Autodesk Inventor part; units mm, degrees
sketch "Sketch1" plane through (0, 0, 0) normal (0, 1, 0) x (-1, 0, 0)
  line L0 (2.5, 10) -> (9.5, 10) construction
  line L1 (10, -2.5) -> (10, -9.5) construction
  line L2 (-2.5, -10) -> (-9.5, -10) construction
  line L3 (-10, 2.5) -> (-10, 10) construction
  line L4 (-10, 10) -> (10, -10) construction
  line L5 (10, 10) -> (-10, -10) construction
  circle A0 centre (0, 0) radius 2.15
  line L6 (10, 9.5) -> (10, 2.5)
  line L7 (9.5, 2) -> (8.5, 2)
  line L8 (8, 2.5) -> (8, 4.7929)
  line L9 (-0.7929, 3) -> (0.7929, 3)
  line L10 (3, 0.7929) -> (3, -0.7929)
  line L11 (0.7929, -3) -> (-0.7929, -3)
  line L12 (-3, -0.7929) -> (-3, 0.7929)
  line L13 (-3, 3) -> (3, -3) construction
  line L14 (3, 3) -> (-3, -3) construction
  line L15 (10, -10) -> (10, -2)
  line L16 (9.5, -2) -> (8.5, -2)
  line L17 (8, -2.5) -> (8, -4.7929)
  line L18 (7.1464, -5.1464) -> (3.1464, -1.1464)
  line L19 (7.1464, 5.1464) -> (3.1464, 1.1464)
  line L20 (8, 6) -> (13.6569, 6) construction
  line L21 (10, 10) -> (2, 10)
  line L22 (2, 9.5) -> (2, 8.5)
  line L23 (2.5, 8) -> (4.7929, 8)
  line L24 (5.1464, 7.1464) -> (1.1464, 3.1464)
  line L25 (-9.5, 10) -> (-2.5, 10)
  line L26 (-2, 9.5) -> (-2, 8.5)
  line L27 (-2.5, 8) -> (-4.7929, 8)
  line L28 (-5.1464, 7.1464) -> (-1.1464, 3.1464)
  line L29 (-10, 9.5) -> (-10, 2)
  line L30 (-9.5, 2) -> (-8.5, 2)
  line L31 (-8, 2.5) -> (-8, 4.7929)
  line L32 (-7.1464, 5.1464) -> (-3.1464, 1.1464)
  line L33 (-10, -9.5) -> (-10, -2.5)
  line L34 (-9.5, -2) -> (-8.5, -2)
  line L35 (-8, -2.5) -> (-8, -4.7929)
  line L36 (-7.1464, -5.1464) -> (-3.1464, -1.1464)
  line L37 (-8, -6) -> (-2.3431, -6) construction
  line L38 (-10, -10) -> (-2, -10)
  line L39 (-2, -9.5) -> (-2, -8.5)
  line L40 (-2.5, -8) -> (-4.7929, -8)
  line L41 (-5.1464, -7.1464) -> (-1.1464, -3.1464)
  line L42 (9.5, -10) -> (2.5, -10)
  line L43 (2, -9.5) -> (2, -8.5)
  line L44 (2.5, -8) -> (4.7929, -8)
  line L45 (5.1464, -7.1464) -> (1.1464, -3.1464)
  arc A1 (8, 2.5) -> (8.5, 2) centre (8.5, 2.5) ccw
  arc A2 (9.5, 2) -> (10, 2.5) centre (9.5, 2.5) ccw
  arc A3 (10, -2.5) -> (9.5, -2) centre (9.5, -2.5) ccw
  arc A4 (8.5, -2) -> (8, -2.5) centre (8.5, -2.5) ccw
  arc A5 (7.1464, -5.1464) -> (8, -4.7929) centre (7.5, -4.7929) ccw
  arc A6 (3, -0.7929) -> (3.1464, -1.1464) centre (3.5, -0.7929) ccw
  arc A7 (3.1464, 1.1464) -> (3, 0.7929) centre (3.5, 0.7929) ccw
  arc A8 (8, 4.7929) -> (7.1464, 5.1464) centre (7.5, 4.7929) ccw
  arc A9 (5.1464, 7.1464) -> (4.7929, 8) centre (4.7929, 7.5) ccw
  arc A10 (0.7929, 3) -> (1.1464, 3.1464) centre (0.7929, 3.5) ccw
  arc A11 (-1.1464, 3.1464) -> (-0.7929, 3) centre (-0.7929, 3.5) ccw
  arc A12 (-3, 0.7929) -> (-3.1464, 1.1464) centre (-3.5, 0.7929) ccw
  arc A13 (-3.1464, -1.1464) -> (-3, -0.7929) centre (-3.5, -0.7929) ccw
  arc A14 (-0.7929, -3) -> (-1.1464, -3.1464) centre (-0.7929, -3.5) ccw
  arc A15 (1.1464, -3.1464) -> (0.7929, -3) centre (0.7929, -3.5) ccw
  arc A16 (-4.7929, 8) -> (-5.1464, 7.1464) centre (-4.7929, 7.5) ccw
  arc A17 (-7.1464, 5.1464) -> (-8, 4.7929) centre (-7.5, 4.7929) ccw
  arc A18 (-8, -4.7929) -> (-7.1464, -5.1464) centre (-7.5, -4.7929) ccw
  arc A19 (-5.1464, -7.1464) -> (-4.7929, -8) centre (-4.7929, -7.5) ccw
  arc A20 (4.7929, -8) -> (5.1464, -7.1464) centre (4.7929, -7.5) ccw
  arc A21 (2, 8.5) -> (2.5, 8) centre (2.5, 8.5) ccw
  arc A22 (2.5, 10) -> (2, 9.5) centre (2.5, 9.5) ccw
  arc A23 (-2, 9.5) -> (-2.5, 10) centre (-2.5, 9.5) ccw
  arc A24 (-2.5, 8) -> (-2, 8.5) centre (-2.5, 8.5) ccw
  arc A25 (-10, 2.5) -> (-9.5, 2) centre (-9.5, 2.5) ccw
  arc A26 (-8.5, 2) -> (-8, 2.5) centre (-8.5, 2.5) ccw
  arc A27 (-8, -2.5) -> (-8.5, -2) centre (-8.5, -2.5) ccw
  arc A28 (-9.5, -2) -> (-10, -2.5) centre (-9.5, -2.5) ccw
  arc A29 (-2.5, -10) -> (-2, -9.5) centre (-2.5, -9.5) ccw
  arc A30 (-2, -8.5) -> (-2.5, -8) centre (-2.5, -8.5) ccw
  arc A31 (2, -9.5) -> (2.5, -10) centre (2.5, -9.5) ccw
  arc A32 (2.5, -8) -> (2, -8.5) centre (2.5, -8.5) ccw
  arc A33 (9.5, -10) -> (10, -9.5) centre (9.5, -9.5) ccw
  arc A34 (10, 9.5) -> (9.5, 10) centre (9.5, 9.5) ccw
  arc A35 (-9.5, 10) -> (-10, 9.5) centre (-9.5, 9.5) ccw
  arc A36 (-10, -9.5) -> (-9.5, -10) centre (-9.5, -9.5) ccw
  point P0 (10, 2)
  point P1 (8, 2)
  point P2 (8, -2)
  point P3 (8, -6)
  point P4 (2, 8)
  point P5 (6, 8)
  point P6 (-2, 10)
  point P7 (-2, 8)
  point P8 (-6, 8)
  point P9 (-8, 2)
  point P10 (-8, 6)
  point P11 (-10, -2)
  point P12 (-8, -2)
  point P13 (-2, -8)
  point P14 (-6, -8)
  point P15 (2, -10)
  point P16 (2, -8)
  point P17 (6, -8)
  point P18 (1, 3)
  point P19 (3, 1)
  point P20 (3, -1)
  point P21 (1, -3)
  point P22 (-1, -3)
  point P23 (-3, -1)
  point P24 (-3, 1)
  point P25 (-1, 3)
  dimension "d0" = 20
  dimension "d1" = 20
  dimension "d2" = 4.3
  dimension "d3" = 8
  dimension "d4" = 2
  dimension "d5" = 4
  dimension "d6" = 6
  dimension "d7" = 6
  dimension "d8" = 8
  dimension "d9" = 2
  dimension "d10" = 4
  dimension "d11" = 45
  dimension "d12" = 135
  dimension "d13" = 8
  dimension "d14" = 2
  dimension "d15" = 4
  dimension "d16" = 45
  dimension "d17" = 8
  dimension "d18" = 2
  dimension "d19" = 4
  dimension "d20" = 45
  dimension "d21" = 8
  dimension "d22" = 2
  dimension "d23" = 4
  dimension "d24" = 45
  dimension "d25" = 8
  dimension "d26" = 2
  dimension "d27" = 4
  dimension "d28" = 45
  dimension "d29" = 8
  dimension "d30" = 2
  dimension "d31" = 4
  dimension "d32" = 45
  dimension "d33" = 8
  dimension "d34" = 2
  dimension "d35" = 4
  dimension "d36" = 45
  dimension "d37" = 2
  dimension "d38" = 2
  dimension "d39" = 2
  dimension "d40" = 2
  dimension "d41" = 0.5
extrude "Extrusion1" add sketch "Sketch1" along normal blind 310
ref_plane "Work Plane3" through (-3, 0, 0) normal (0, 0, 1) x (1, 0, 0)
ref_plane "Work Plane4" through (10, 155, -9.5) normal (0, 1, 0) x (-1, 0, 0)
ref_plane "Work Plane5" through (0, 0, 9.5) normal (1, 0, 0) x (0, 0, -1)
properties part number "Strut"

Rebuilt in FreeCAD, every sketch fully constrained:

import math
import FreeCAD as App
import Part
import Sketcher
from FreeCAD import Vector
Q = App.Units.Quantity

doc = App.newDocument("Part")
body = doc.addObject("PartDesign::Body", "Body")

# Sketch on XZ plane
sketch1 = body.newObject("Sketcher::SketchObject", "Sketch")
sketch1.AttachmentSupport = (doc.getObject("XZ_Plane"), [""])
sketch1.MapMode = "FlatFace"
sketch1.addGeometry([
    Part.LineSegment(Vector(-10, 2.5, 0), Vector(-10, 9.5, 0)),  # 0
    Part.ArcOfCircle(Part.Circle(Vector(-9.5, 9.5, 0), Vector(0, 0, 1), 0.5), math.radians(90), math.radians(180)),  # 1
    Part.LineSegment(Vector(-9.5, 10, 0), Vector(-2.5, 10, 0)),  # 2
    Part.ArcOfCircle(Part.Circle(Vector(-2.5, 9.5, 0), Vector(0, 0, 1), 0.5), math.radians(0), math.radians(90)),  # 3
    Part.LineSegment(Vector(-2, 9.5, 0), Vector(-2, 8.5, 0)),  # 4
    Part.ArcOfCircle(Part.Circle(Vector(-2.5, 8.5, 0), Vector(0, 0, 1), 0.5), math.radians(-90), math.radians(0)),  # 5
    Part.LineSegment(Vector(-2.5, 8, 0), Vector(-4.7929, 8, 0)),  # 6
    Part.ArcOfCircle(Part.Circle(Vector(-4.7929, 7.5, 0), Vector(0, 0, 1), 0.499995), math.radians(90), math.radians(225.008103)),  # 7
    Part.LineSegment(Vector(-5.1464, 7.1464, 0), Vector(-1.1464, 3.1464, 0)),  # 8
    Part.ArcOfCircle(Part.Circle(Vector(-0.7929, 3.5, 0), Vector(0, 0, 1), 0.5), math.radians(-134.991897), math.radians(-90)),  # 9
    Part.LineSegment(Vector(-0.7929, 3, 0), Vector(0.7929, 3, 0)),  # 10
    Part.ArcOfCircle(Part.Circle(Vector(0.7929, 3.5, 0), Vector(0, 0, 1), 0.499995), math.radians(-90), math.radians(-45.008103)),  # 11
    Part.LineSegment(Vector(1.1464, 3.1464, 0), Vector(5.1464, 7.1464, 0)),  # 12
    Part.ArcOfCircle(Part.Circle(Vector(4.7929, 7.5, 0), Vector(0, 0, 1), 0.5), math.radians(-45.008103), math.radians(90)),  # 13
    Part.LineSegment(Vector(4.7929, 8, 0), Vector(2.5, 8, 0)),  # 14
    Part.ArcOfCircle(Part.Circle(Vector(2.5, 8.5, 0), Vector(0, 0, 1), 0.5), math.radians(180), math.radians(270)),  # 15
    Part.LineSegment(Vector(2, 8.5, 0), Vector(2, 9.5, 0)),  # 16
    Part.ArcOfCircle(Part.Circle(Vector(2.5, 9.5, 0), Vector(0, 0, 1), 0.5), math.radians(90), math.radians(180)),  # 17
    Part.LineSegment(Vector(2.5, 10, 0), Vector(9.5, 10, 0)),  # 18
    Part.ArcOfCircle(Part.Circle(Vector(9.5, 9.5, 0), Vector(0, 0, 1), 0.5), math.radians(0), math.radians(90)),  # 19
    Part.LineSegment(Vector(10, 9.5, 0), Vector(10, 2.5, 0)),  # 20
    Part.ArcOfCircle(Part.Circle(Vector(9.5, 2.5, 0), Vector(0, 0, 1), 0.5), math.radians(-90), math.radians(0)),  # 21
    Part.LineSegment(Vector(9.5, 2, 0), Vector(8.5, 2, 0)),  # 22
    Part.ArcOfCircle(Part.Circle(Vector(8.5, 2.5, 0), Vector(0, 0, 1), 0.5), math.radians(180), math.radians(270)),  # 23
    Part.LineSegment(Vector(8, 2.5, 0), Vector(8, 4.7929, 0)),  # 24
    Part.ArcOfCircle(Part.Circle(Vector(7.5, 4.7929, 0), Vector(0, 0, 1), 0.499995), math.radians(0), math.radians(135.008103)),  # 25
    Part.LineSegment(Vector(7.1464, 5.1464, 0), Vector(3.1464, 1.1464, 0)),  # 26
    Part.ArcOfCircle(Part.Circle(Vector(3.5, 0.7929, 0), Vector(0, 0, 1), 0.5), math.radians(135.008103), math.radians(180)),  # 27
    Part.LineSegment(Vector(3, 0.7929, 0), Vector(3, -0.7929, 0)),  # 28
    Part.ArcOfCircle(Part.Circle(Vector(3.5, -0.7929, 0), Vector(0, 0, 1), 0.499995), math.radians(180), math.radians(224.991897)),  # 29
    Part.LineSegment(Vector(3.1464, -1.1464, 0), Vector(7.1464, -5.1464, 0)),  # 30
    Part.ArcOfCircle(Part.Circle(Vector(7.5, -4.7929, 0), Vector(0, 0, 1), 0.5), math.radians(-135.008103), math.radians(0)),  # 31
    Part.LineSegment(Vector(8, -4.7929, 0), Vector(8, -2.5, 0)),  # 32
    Part.ArcOfCircle(Part.Circle(Vector(8.5, -2.5, 0), Vector(0, 0, 1), 0.5), math.radians(90), math.radians(180)),  # 33
    Part.LineSegment(Vector(8.5, -2, 0), Vector(9.5, -2, 0)),  # 34
    Part.ArcOfCircle(Part.Circle(Vector(9.5, -2.5, 0), Vector(0, 0, 1), 0.5), math.radians(0), math.radians(90)),  # 35
    Part.LineSegment(Vector(10, -2.5, 0), Vector(10, -9.5, 0)),  # 36
    Part.ArcOfCircle(Part.Circle(Vector(9.5, -9.5, 0), Vector(0, 0, 1), 0.5), math.radians(-90), math.radians(0)),  # 37
    Part.LineSegment(Vector(9.5, -10, 0), Vector(2.5, -10, 0)),  # 38
    Part.ArcOfCircle(Part.Circle(Vector(2.5, -9.5, 0), Vector(0, 0, 1), 0.5), math.radians(180), math.radians(270)),  # 39
    Part.LineSegment(Vector(2, -9.5, 0), Vector(2, -8.5, 0)),  # 40
    Part.ArcOfCircle(Part.Circle(Vector(2.5, -8.5, 0), Vector(0, 0, 1), 0.5), math.radians(90), math.radians(180)),  # 41
    Part.LineSegment(Vector(2.5, -8, 0), Vector(4.7929, -8, 0)),  # 42
    Part.ArcOfCircle(Part.Circle(Vector(4.7929, -7.5, 0), Vector(0, 0, 1), 0.499995), math.radians(-90), math.radians(45.008103)),  # 43
    Part.LineSegment(Vector(5.1464, -7.1464, 0), Vector(1.1464, -3.1464, 0)),  # 44
    Part.ArcOfCircle(Part.Circle(Vector(0.7929, -3.5, 0), Vector(0, 0, 1), 0.5), math.radians(45.008103), math.radians(90)),  # 45
    Part.LineSegment(Vector(0.7929, -3, 0), Vector(-0.7929, -3, 0)),  # 46
    Part.ArcOfCircle(Part.Circle(Vector(-0.7929, -3.5, 0), Vector(0, 0, 1), 0.499995), math.radians(90), math.radians(134.991897)),  # 47
    Part.LineSegment(Vector(-1.1464, -3.1464, 0), Vector(-5.1464, -7.1464, 0)),  # 48
    Part.ArcOfCircle(Part.Circle(Vector(-4.7929, -7.5, 0), Vector(0, 0, 1), 0.5), math.radians(134.991897), math.radians(270)),  # 49
    Part.LineSegment(Vector(-4.7929, -8, 0), Vector(-2.5, -8, 0)),  # 50
    Part.ArcOfCircle(Part.Circle(Vector(-2.5, -8.5, 0), Vector(0, 0, 1), 0.5), math.radians(0), math.radians(90)),  # 51
    Part.LineSegment(Vector(-2, -8.5, 0), Vector(-2, -9.5, 0)),  # 52
    Part.ArcOfCircle(Part.Circle(Vector(-2.5, -9.5, 0), Vector(0, 0, 1), 0.5), math.radians(-90), math.radians(0)),  # 53
    Part.LineSegment(Vector(-2.5, -10, 0), Vector(-9.5, -10, 0)),  # 54
    Part.ArcOfCircle(Part.Circle(Vector(-9.5, -9.5, 0), Vector(0, 0, 1), 0.5), math.radians(180), math.radians(270)),  # 55
    Part.LineSegment(Vector(-10, -9.5, 0), Vector(-10, -2.5, 0)),  # 56
    Part.ArcOfCircle(Part.Circle(Vector(-9.5, -2.5, 0), Vector(0, 0, 1), 0.5), math.radians(90), math.radians(180)),  # 57
    Part.LineSegment(Vector(-9.5, -2, 0), Vector(-8.5, -2, 0)),  # 58
    Part.ArcOfCircle(Part.Circle(Vector(-8.5, -2.5, 0), Vector(0, 0, 1), 0.5), math.radians(0), math.radians(90)),  # 59
    Part.LineSegment(Vector(-8, -2.5, 0), Vector(-8, -4.7929, 0)),  # 60
    Part.ArcOfCircle(Part.Circle(Vector(-7.5, -4.7929, 0), Vector(0, 0, 1), 0.499995), math.radians(180), math.radians(315.008103)),  # 61
    Part.LineSegment(Vector(-7.1464, -5.1464, 0), Vector(-3.1464, -1.1464, 0)),  # 62
    Part.ArcOfCircle(Part.Circle(Vector(-3.5, -0.7929, 0), Vector(0, 0, 1), 0.5), math.radians(-44.991897), math.radians(0)),  # 63
    Part.LineSegment(Vector(-3, -0.7929, 0), Vector(-3, 0.7929, 0)),  # 64
    Part.ArcOfCircle(Part.Circle(Vector(-3.5, 0.7929, 0), Vector(0, 0, 1), 0.499995), math.radians(0), math.radians(44.991897)),  # 65
    Part.LineSegment(Vector(-3.1464, 1.1464, 0), Vector(-7.1464, 5.1464, 0)),  # 66
    Part.ArcOfCircle(Part.Circle(Vector(-7.5, 4.7929, 0), Vector(0, 0, 1), 0.5), math.radians(44.991897), math.radians(180)),  # 67
    Part.LineSegment(Vector(-8, 4.7929, 0), Vector(-8, 2.5, 0)),  # 68
    Part.ArcOfCircle(Part.Circle(Vector(-8.5, 2.5, 0), Vector(0, 0, 1), 0.5), math.radians(-90), math.radians(0)),  # 69
    Part.LineSegment(Vector(-8.5, 2, 0), Vector(-9.5, 2, 0)),  # 70
    Part.ArcOfCircle(Part.Circle(Vector(-9.5, 2.5, 0), Vector(0, 0, 1), 0.5), math.radians(180), math.radians(270)),  # 71
    Part.Circle(Vector(0, 0, 0), Vector(0, 0, 1), 2.15),  # 72
], False)
sketch1.addConstraint([
    Sketcher.Constraint("Tangent", 0, 2, 1, 2),
    Sketcher.Constraint("Tangent", 1, 1, 2, 1),
    Sketcher.Constraint("Tangent", 2, 2, 3, 2),
    Sketcher.Constraint("Tangent", 3, 1, 4, 1),
    Sketcher.Constraint("Tangent", 4, 2, 5, 2),
    Sketcher.Constraint("Tangent", 5, 1, 6, 1),
    Sketcher.Constraint("Tangent", 6, 2, 7, 1),
    Sketcher.Constraint("Tangent", 7, 2, 8, 1),
    Sketcher.Constraint("Tangent", 8, 2, 9, 1),
    Sketcher.Constraint("Tangent", 9, 2, 10, 1),
    Sketcher.Constraint("Tangent", 10, 2, 11, 1),
    Sketcher.Constraint("Tangent", 11, 2, 12, 1),
    Sketcher.Constraint("Tangent", 12, 2, 13, 1),
    Sketcher.Constraint("Tangent", 13, 2, 14, 1),
    Sketcher.Constraint("Tangent", 14, 2, 15, 2),
    Sketcher.Constraint("Tangent", 15, 1, 16, 1),
    Sketcher.Constraint("Tangent", 16, 2, 17, 2),
    Sketcher.Constraint("Tangent", 17, 1, 18, 1),
    Sketcher.Constraint("Tangent", 18, 2, 19, 2),
    Sketcher.Constraint("Tangent", 19, 1, 20, 1),
    Sketcher.Constraint("Tangent", 20, 2, 21, 2),
    Sketcher.Constraint("Tangent", 21, 1, 22, 1),
    Sketcher.Constraint("Tangent", 22, 2, 23, 2),
    Sketcher.Constraint("Tangent", 23, 1, 24, 1),
    Sketcher.Constraint("Tangent", 24, 2, 25, 1),
    Sketcher.Constraint("Tangent", 25, 2, 26, 1),
    Sketcher.Constraint("Tangent", 26, 2, 27, 1),
    Sketcher.Constraint("Tangent", 27, 2, 28, 1),
    Sketcher.Constraint("Tangent", 28, 2, 29, 1),
    Sketcher.Constraint("Tangent", 29, 2, 30, 1),
    Sketcher.Constraint("Tangent", 30, 2, 31, 1),
    Sketcher.Constraint("Tangent", 31, 2, 32, 1),
    Sketcher.Constraint("Tangent", 32, 2, 33, 2),
    Sketcher.Constraint("Tangent", 33, 1, 34, 1),
    Sketcher.Constraint("Tangent", 34, 2, 35, 2),
    Sketcher.Constraint("Tangent", 35, 1, 36, 1),
    Sketcher.Constraint("Tangent", 36, 2, 37, 2),
    Sketcher.Constraint("Tangent", 37, 1, 38, 1),
    Sketcher.Constraint("Tangent", 38, 2, 39, 2),
    Sketcher.Constraint("Tangent", 39, 1, 40, 1),
    Sketcher.Constraint("Tangent", 40, 2, 41, 2),
    Sketcher.Constraint("Tangent", 41, 1, 42, 1),
    Sketcher.Constraint("Tangent", 42, 2, 43, 1),
    Sketcher.Constraint("Tangent", 43, 2, 44, 1),
    Sketcher.Constraint("Tangent", 44, 2, 45, 1),
    Sketcher.Constraint("Tangent", 45, 2, 46, 1),
    Sketcher.Constraint("Tangent", 46, 2, 47, 1),
    Sketcher.Constraint("Tangent", 47, 2, 48, 1),
    Sketcher.Constraint("Tangent", 48, 2, 49, 1),
    Sketcher.Constraint("Tangent", 49, 2, 50, 1),
    Sketcher.Constraint("Tangent", 50, 2, 51, 2),
    Sketcher.Constraint("Tangent", 51, 1, 52, 1),
    Sketcher.Constraint("Tangent", 52, 2, 53, 2),
    Sketcher.Constraint("Tangent", 53, 1, 54, 1),
    Sketcher.Constraint("Tangent", 54, 2, 55, 2),
    Sketcher.Constraint("Tangent", 55, 1, 56, 1),
    Sketcher.Constraint("Tangent", 56, 2, 57, 2),
    Sketcher.Constraint("Tangent", 57, 1, 58, 1),
    Sketcher.Constraint("Tangent", 58, 2, 59, 2),
    Sketcher.Constraint("Tangent", 59, 1, 60, 1),
    Sketcher.Constraint("Tangent", 60, 2, 61, 1),
    Sketcher.Constraint("Tangent", 61, 2, 62, 1),
    Sketcher.Constraint("Tangent", 62, 2, 63, 1),
    Sketcher.Constraint("Tangent", 63, 2, 64, 1),
    Sketcher.Constraint("Tangent", 64, 2, 65, 1),
    Sketcher.Constraint("Tangent", 65, 2, 66, 1),
    Sketcher.Constraint("Tangent", 66, 2, 67, 1),
    Sketcher.Constraint("Tangent", 67, 2, 68, 1),
    Sketcher.Constraint("Tangent", 68, 2, 69, 2),
    Sketcher.Constraint("Tangent", 69, 1, 70, 1),
    Sketcher.Constraint("Tangent", 70, 2, 71, 2),
    Sketcher.Constraint("Tangent", 71, 1, 0, 1),
    Sketcher.Constraint("Vertical", 0),
    Sketcher.Constraint("Horizontal", 2),
    Sketcher.Constraint("Vertical", 4),
    Sketcher.Constraint("Horizontal", 6),
    Sketcher.Constraint("Horizontal", 10),
    Sketcher.Constraint("Horizontal", 14),
    Sketcher.Constraint("Vertical", 16),
    Sketcher.Constraint("Horizontal", 18),
    Sketcher.Constraint("Vertical", 20),
    Sketcher.Constraint("Horizontal", 22),
    Sketcher.Constraint("Vertical", 24),
    Sketcher.Constraint("Vertical", 28),
    Sketcher.Constraint("Vertical", 32),
    Sketcher.Constraint("Horizontal", 34),
    Sketcher.Constraint("Vertical", 36),
    Sketcher.Constraint("Horizontal", 38),
    Sketcher.Constraint("Vertical", 40),
    Sketcher.Constraint("Horizontal", 42),
    Sketcher.Constraint("Horizontal", 46),
    Sketcher.Constraint("Horizontal", 50),
    Sketcher.Constraint("Vertical", 52),
    Sketcher.Constraint("Horizontal", 54),
    Sketcher.Constraint("Vertical", 56),
    Sketcher.Constraint("Horizontal", 58),
    Sketcher.Constraint("Vertical", 60),
    Sketcher.Constraint("Vertical", 64),
    Sketcher.Constraint("Vertical", 68),
    Sketcher.Constraint("Horizontal", 70),
    Sketcher.Constraint("Coincident", 72, 3, -1, 1),
    Sketcher.Constraint("Equal", 1, 3),
    Sketcher.Constraint("Equal", 3, 5),
    Sketcher.Constraint("Equal", 5, 7),
    Sketcher.Constraint("Equal", 7, 9),
    Sketcher.Constraint("Equal", 9, 11),
    Sketcher.Constraint("Equal", 11, 13),
    Sketcher.Constraint("Equal", 13, 15),
    Sketcher.Constraint("Equal", 15, 17),
    Sketcher.Constraint("Equal", 17, 19),
    Sketcher.Constraint("Equal", 19, 21),
    Sketcher.Constraint("Equal", 21, 23),
    Sketcher.Constraint("Equal", 23, 25),
    Sketcher.Constraint("Equal", 25, 27),
    Sketcher.Constraint("Equal", 27, 29),
    Sketcher.Constraint("Equal", 29, 31),
    Sketcher.Constraint("Equal", 31, 33),
    Sketcher.Constraint("Equal", 33, 35),
    Sketcher.Constraint("Equal", 35, 37),
    Sketcher.Constraint("Equal", 37, 39),
    Sketcher.Constraint("Equal", 39, 41),
    Sketcher.Constraint("Equal", 41, 43),
    Sketcher.Constraint("Equal", 43, 45),
    Sketcher.Constraint("Equal", 45, 47),
    Sketcher.Constraint("Equal", 47, 49),
    Sketcher.Constraint("Equal", 49, 51),
    Sketcher.Constraint("Equal", 51, 53),
    Sketcher.Constraint("Equal", 53, 55),
    Sketcher.Constraint("Equal", 55, 57),
    Sketcher.Constraint("Equal", 57, 59),
    Sketcher.Constraint("Equal", 59, 61),
    Sketcher.Constraint("Equal", 61, 63),
    Sketcher.Constraint("Equal", 63, 65),
    Sketcher.Constraint("Equal", 65, 67),
    Sketcher.Constraint("Equal", 67, 69),
    Sketcher.Constraint("Equal", 69, 71),
    Sketcher.Constraint("Symmetric", 1, 3, 37, 3, -1, 1),
    Sketcher.Constraint("Symmetric", 5, 3, 41, 3, -1, 1),
    Sketcher.Constraint("Symmetric", 9, 3, 45, 3, -1, 1),
    Sketcher.Constraint("Symmetric", 13, 3, 49, 3, -1, 1),
    Sketcher.Constraint("Symmetric", 17, 3, 53, 3, -1, 1),
    Sketcher.Constraint("Symmetric", 21, 3, 57, 3, -1, 1),
    Sketcher.Constraint("Symmetric", 25, 3, 61, 3, -1, 1),
    Sketcher.Constraint("Symmetric", 27, 3, 63, 3, -1, 1),
    Sketcher.Constraint("Symmetric", 31, 3, 67, 3, -1, 1),
    Sketcher.Constraint("Symmetric", 7, 3, 13, 3, -2),
    Sketcher.Constraint("Symmetric", 3, 3, 17, 3, -2),
    Sketcher.Constraint("Symmetric", 35, 3, 57, 3, -2),
    Sketcher.Constraint("Symmetric", 31, 3, 61, 3, -2),
    Sketcher.Constraint("Symmetric", 44, 2, 47, 2, -2),
    Sketcher.Constraint("Perpendicular", 8, 12),
    Sketcher.Constraint("Parallel", 12, 26),
    Sketcher.Constraint("Perpendicular", 26, 30),
    Sketcher.Constraint("Perpendicular", 44, 48),
    Sketcher.Constraint("Perpendicular", 62, 66),
    Sketcher.Constraint("Horizontal", 23, 3, 69, 3),
    Sketcher.Constraint("Equal", 54, 0),
    Sketcher.Constraint("Equal", 70, 4),
    Sketcher.Constraint("Equal", 50, 24),
    Sketcher.Constraint("Equal", 46, 28),
    Sketcher.Constraint("Equal", 12, 26),
    Sketcher.Constraint("Diameter", 72, Q("4.3 mm")),
    Sketcher.Constraint("Radius", 1, Q("0.5 mm")),
    Sketcher.Constraint("DistanceX", 3, 1, -1, 1, Q("2 mm")),
    Sketcher.Constraint("DistanceY", -1, 1, 5, 1, Q("8 mm")),
    Sketcher.Constraint("DistanceX", 2, 1, 2, 2, Q("7 mm")),
    Sketcher.Constraint("DistanceY", -1, 1, 9, 2, Q("3 mm")),
    Sketcher.Constraint("DistanceX", 6, 2, 6, 1, Q("2.293 mm")),
])
pad1 = body.newObject("PartDesign::Pad", "Pad")
pad1.Profile = sketch1
pad1.Length = 310
pad1.Reversed = True

doc.recompute()
